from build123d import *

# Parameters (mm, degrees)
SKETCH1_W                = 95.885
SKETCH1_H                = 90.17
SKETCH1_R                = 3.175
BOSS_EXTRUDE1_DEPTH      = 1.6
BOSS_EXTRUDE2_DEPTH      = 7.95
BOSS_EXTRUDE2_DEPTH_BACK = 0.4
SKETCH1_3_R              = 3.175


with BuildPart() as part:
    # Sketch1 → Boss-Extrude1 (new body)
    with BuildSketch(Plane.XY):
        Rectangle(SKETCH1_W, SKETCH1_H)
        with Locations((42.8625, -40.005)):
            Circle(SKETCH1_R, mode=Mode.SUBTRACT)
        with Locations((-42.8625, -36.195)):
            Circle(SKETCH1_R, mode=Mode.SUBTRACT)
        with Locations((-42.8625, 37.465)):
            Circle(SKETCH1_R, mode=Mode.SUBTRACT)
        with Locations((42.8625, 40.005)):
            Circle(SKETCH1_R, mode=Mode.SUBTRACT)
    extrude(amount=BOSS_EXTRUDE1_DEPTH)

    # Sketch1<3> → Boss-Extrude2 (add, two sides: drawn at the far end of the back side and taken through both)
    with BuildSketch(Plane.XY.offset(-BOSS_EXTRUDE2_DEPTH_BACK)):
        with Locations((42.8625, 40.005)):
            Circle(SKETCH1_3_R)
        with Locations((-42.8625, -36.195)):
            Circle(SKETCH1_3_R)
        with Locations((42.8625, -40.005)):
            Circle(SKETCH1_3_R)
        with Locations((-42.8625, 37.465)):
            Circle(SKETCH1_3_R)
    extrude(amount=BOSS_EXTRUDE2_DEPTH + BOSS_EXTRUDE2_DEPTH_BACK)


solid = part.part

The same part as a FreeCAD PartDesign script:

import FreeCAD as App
import Part
import Sketcher
from FreeCAD import Vector
Q = App.Units.Quantity


def add_polygon(sketch, points):
    """Adds a closed chain of lines whose ends are joined by coincident constraints."""
    first, n = sketch.GeometryCount, len(points)
    for a, b in zip(points, points[1:] + points[:1]):
        sketch.addGeometry(Part.LineSegment(App.Vector(*a, 0), App.Vector(*b, 0)), False)
    for i in range(n):
        sketch.addConstraint(Sketcher.Constraint("Coincident", first + i, 2, first + (i + 1) % n, 1))

doc = App.newDocument("Part")
body = doc.addObject("PartDesign::Body", "Body")

sketch1 = body.newObject("Sketcher::SketchObject", "Sketch")
sketch1.AttachmentSupport = (doc.getObject("XY_Plane"), [""])
sketch1.MapMode = "FlatFace"
add_polygon(sketch1, [(-47.9425, 45.085), (-47.9425, -45.085), (47.9425, -45.085), (47.9425, 45.085)])
sketch1.addGeometry(Part.Circle(Vector(-42.8625, -36.195, 0), Vector(0, 0, 1), 3.175), False)
sketch1.addGeometry(Part.Circle(Vector(42.8625, -40.005, 0), Vector(0, 0, 1), 3.175), False)
sketch1.addGeometry(Part.Circle(Vector(-42.8625, 37.465, 0), Vector(0, 0, 1), 3.175), False)
sketch1.addGeometry(Part.Circle(Vector(42.8625, 40.005, 0), Vector(0, 0, 1), 3.175), False)
sketch1.addConstraint([
    Sketcher.Constraint("Vertical", 0),
    Sketcher.Constraint("Horizontal", 1),
    Sketcher.Constraint("Vertical", 2),
    Sketcher.Constraint("Horizontal", 3),
    Sketcher.Constraint("Equal", 4, 5),
    Sketcher.Constraint("Equal", 5, 6),
    Sketcher.Constraint("Equal", 6, 7),
    Sketcher.Constraint("Symmetric", 0, 2, 2, 2, -1, 1),
    Sketcher.Constraint("Symmetric", 5, 3, 7, 3, -1),
    Sketcher.Constraint("Vertical", 4, 3, 6, 3),
    Sketcher.Constraint("Diameter", 4, Q("0.25 in")),
    Sketcher.Constraint("DistanceY", 4, 3, 7, 3, Q("3 in")),
    Sketcher.Constraint("DistanceY", 0, 2, 0, 1, Q("3.55 in")),
    Sketcher.Constraint("DistanceY", 4, 3, 6, 3, Q("2.9 in")),
    Sketcher.Constraint("DistanceX", 0, 2, 4, 3, Q("0.2 in")),
    Sketcher.Constraint("DistanceY", 0, 2, 5, 3, Q("0.2 in")),
    Sketcher.Constraint("DistanceX", 5, 3, 1, 2, Q("0.2 in")),
    Sketcher.Constraint("DistanceX", 1, 1, 1, 2, Q("3.775 in")),
])
pad1 = body.newObject("PartDesign::Pad", "Pad")
pad1.Profile = sketch1
pad1.Length = 1.6

sketch2 = body.newObject("Sketcher::SketchObject", "Sketch001")
sketch2.AttachmentSupport = (doc.getObject("XY_Plane"), [""])
sketch2.MapMode = "FlatFace"
sketch2.addGeometry([
    Part.Circle(Vector(42.8625, 40.005, 0), Vector(0, 0, 1), 3.175),
    Part.Circle(Vector(-42.8625, -36.195, 0), Vector(0, 0, 1), 3.175),
    Part.Circle(Vector(42.8625, -40.005, 0), Vector(0, 0, 1), 3.175),
    Part.Circle(Vector(-42.8625, 37.465, 0), Vector(0, 0, 1), 3.175),
], False)
sketch2.addConstraint([
    Sketcher.Constraint("Equal", 0, 1),
    Sketcher.Constraint("Equal", 1, 2),
    Sketcher.Constraint("Equal", 2, 3),
    Sketcher.Constraint("Symmetric", 0, 3, 2, 3, -1),
    Sketcher.Constraint("Vertical", 1, 3, 3, 3),
    Sketcher.Constraint("Diameter", 0, Q("0.25 in")),
    Sketcher.Constraint("DistanceY", 1, 3, 0, 3, Q("3 in")),
    Sketcher.Constraint("DistanceY", 1, 3, 3, 3, Q("2.9 in")),
    Sketcher.Constraint("DistanceY", 2, 3, 0, 3, Q("3.15 in")),
    Sketcher.Constraint("DistanceX", -1, 1, 0, 3, Q("1.6875 in")),
    Sketcher.Constraint("DistanceX", 1, 3, -1, 1, Q("1.6875 in")),
])
pad2 = body.newObject("PartDesign::Pad", "Pad001")
pad2.Profile = sketch2
pad2.Type = "TwoLengths"
pad2.Length = 7.95
pad2.Length2 = 0.4

doc.recompute()
